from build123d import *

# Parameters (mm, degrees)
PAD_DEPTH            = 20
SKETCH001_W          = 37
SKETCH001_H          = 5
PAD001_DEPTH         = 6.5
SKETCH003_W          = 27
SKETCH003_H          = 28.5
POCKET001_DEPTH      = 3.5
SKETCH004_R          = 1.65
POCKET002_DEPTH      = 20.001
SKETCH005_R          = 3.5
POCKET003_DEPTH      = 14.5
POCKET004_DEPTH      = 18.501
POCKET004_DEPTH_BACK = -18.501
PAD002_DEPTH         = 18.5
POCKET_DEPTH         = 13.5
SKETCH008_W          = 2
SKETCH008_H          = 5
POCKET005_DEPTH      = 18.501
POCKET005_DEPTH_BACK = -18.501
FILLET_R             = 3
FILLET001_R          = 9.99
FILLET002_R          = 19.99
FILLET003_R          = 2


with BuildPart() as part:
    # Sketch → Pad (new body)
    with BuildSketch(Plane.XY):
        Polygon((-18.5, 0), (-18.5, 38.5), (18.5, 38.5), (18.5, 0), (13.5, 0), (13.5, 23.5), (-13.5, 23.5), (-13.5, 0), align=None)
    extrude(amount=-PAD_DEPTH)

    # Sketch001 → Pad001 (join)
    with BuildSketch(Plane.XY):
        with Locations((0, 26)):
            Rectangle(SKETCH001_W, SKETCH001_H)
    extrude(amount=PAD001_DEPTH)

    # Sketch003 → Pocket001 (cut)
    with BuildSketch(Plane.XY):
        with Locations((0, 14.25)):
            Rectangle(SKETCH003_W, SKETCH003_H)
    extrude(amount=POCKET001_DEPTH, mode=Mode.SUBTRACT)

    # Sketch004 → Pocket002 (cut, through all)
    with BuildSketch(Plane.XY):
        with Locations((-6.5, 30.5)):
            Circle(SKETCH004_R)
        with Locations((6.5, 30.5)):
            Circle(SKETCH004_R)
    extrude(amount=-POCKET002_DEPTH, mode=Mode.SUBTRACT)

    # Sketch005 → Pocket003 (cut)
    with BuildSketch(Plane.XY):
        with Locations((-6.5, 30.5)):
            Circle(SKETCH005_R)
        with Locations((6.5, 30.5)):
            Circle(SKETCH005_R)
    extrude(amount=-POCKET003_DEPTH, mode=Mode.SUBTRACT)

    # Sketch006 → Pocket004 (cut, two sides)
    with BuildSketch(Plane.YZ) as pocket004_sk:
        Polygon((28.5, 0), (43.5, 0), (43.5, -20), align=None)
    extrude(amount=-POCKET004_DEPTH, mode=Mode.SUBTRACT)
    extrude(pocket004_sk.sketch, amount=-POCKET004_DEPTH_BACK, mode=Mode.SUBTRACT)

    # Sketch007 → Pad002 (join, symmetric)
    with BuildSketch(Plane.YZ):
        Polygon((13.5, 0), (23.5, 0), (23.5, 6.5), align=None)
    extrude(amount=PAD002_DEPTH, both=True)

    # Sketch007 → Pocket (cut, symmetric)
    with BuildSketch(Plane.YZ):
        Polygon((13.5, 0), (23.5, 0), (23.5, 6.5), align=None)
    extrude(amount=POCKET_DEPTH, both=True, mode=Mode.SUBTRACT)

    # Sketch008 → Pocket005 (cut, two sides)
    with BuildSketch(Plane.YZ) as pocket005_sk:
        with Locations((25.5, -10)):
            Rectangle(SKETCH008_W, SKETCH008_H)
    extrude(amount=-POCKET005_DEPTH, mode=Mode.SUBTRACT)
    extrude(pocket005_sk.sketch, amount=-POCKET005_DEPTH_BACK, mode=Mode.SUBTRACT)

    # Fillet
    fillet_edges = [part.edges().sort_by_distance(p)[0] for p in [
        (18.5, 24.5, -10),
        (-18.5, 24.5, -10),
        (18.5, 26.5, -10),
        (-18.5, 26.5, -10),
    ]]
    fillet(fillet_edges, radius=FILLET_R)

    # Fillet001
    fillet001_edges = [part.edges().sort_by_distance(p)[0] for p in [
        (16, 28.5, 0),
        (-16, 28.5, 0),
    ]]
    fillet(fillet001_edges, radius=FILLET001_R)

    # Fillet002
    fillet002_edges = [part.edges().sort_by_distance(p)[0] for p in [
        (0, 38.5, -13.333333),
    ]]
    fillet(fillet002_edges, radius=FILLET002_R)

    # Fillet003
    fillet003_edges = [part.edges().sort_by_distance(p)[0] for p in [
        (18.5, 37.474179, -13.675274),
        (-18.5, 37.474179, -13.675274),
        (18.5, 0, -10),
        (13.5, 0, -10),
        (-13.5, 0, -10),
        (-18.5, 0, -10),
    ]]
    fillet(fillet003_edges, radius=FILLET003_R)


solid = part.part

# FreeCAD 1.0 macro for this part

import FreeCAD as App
import Part
import Sketcher
from FreeCAD import Vector
Q = App.Units.Quantity


def edges_at(feature, points):
    """Names of the edges that pass closest to the given points."""
    edges = feature.Shape.Edges
    near = lambda p: min(range(len(edges)), key=lambda i: edges[i].distToShape(Part.Vertex(*p))[0])
    return sorted({f"Edge{near(p) + 1}" for p in points})


def add_polygon(sketch, points):
    """Adds a closed chain of lines whose ends are joined by coincident constraints."""
    first, n = sketch.GeometryCount, len(points)
    for a, b in zip(points, points[1:] + points[:1]):
        sketch.addGeometry(Part.LineSegment(App.Vector(*a, 0), App.Vector(*b, 0)), False)
    for i in range(n):
        sketch.addConstraint(Sketcher.Constraint("Coincident", first + i, 2, first + (i + 1) % n, 1))

doc = App.newDocument("Part")
body = doc.addObject("PartDesign::Body", "Body")

sketch1 = doc.addObject("Sketcher::SketchObject", "Sketch")
body.addObject(sketch1)
sketch1.AttachmentSupport = (doc.XY_Plane, [""])
sketch1.MapMode = "FlatFace"
add_polygon(sketch1, [(-18.5, 38.5), (-18.5, 0), (-13.5, 0), (-13.5, 23.5), (13.5, 23.5), (13.5, 0), (18.5, 0), (18.5, 38.5)])
sketch1.addConstraint([
    Sketcher.Constraint("Vertical", 0),
    Sketcher.Constraint("Horizontal", 1),
    Sketcher.Constraint("Vertical", 2),
    Sketcher.Constraint("Horizontal", 3),
    Sketcher.Constraint("Vertical", 4),
    Sketcher.Constraint("Horizontal", 5),
    Sketcher.Constraint("Vertical", 6),
    Sketcher.Constraint("Horizontal", 7),
    Sketcher.Constraint("Symmetric", 1, 2, 4, 2, -1, 1),
    Sketcher.Constraint("Symmetric", 0, 2, 5, 2, -2),
    Sketcher.Constraint("DistanceX", 1, 1, 1, 2, Q("5 mm")),
    Sketcher.Constraint("DistanceX", 3, 1, 3, 2, Q("27 mm")),
    Sketcher.Constraint("DistanceY", 0, 2, 0, 1, Q("38.5 mm")),
    Sketcher.Constraint("DistanceY", 2, 1, 2, 2, Q("23.5 mm")),
])
pad1 = doc.addObject("PartDesign::Pad", "Pad")
body.addObject(pad1)
pad1.Profile = sketch1
pad1.Length = 20
pad1.Reversed = True

sketch2 = doc.addObject("Sketcher::SketchObject", "Sketch001")
body.addObject(sketch2)
sketch2.AttachmentSupport = (doc.XY_Plane, [""])
sketch2.MapMode = "FlatFace"
add_polygon(sketch2, [(-18.5, 28.5), (-18.5, 23.5), (18.5, 23.5), (18.5, 28.5)])
sketch2.addConstraint([
    Sketcher.Constraint("Vertical", 0),
    Sketcher.Constraint("Horizontal", 1),
    Sketcher.Constraint("Vertical", 2),
    Sketcher.Constraint("Horizontal", 3),
    Sketcher.Constraint("DistanceX", 1, 1, 1, 2, Q("37 mm")),
    Sketcher.Constraint("DistanceY", 0, 2, 0, 1, Q("5 mm")),
    Sketcher.Constraint("DistanceX", 0, 2, -1, 1, Q("18.5 mm")),
    Sketcher.Constraint("DistanceY", -1, 1, 0, 2, Q("23.5 mm")),
])
pad2 = doc.addObject("PartDesign::Pad", "Pad001")
body.addObject(pad2)
pad2.Profile = sketch2
pad2.Length = 6.5

sketch3 = doc.addObject("Sketcher::SketchObject", "Sketch002")
body.addObject(sketch3)
sketch3.AttachmentSupport = (doc.XY_Plane, [""])
sketch3.MapMode = "FlatFace"
add_polygon(sketch3, [(-13.5, 28.5), (-13.5, 0), (13.5, 0), (13.5, 28.5)])
sketch3.addConstraint([
    Sketcher.Constraint("Vertical", 0),
    Sketcher.Constraint("Horizontal", 1),
    Sketcher.Constraint("Vertical", 2),
    Sketcher.Constraint("Horizontal", 3),
    Sketcher.Constraint("Symmetric", 0, 2, 1, 2, -1, 1),
    Sketcher.Constraint("DistanceX", 1, 1, 1, 2, Q("27 mm")),
    Sketcher.Constraint("DistanceY", 0, 2, 0, 1, Q("28.5 mm")),
])
pocket1 = doc.addObject("PartDesign::Pocket", "Pocket")
body.addObject(pocket1)
pocket1.Profile = sketch3
pocket1.Length = 3.5
pocket1.Reversed = True

sketch4 = doc.addObject("Sketcher::SketchObject", "Sketch003")
body.addObject(sketch4)
sketch4.AttachmentSupport = (doc.XY_Plane, [""])
sketch4.MapMode = "FlatFace"
sketch4.addGeometry([
    Part.Circle(Vector(-6.5, 30.5, 0), Vector(0, 0, 1), 1.65),
    Part.Circle(Vector(6.5, 30.5, 0), Vector(0, 0, 1), 1.65),
], False)
sketch4.addConstraint([
    Sketcher.Constraint("Equal", 0, 1),
    Sketcher.Constraint("Symmetric", 0, 3, 1, 3, -2),
    Sketcher.Constraint("Diameter", 0, Q("3.3 mm")),
    Sketcher.Constraint("DistanceX", 0, 3, 1, 3, Q("13 mm")),
    Sketcher.Constraint("DistanceY", -1, 1, 0, 3, Q("30.5 mm")),
])
pocket2 = doc.addObject("PartDesign::Pocket", "Pocket001")
body.addObject(pocket2)
pocket2.Profile = sketch4
pocket2.Type = "ThroughAll"

sketch5 = doc.addObject("Sketcher::SketchObject", "Sketch004")
body.addObject(sketch5)
sketch5.AttachmentSupport = (doc.XY_Plane, [""])
sketch5.MapMode = "FlatFace"
sketch5.addGeometry([
    Part.Circle(Vector(-6.5, 30.5, 0), Vector(0, 0, 1), 3.5),
    Part.Circle(Vector(6.5, 30.5, 0), Vector(0, 0, 1), 3.5),
], False)
sketch5.addConstraint([
    Sketcher.Constraint("Equal", 0, 1),
    Sketcher.Constraint("Symmetric", 0, 3, 1, 3, -2),
    Sketcher.Constraint("Diameter", 0, Q("7 mm")),
    Sketcher.Constraint("DistanceX", 0, 3, 1, 3, Q("13 mm")),
    Sketcher.Constraint("DistanceY", -1, 1, 0, 3, Q("30.5 mm")),
])
pocket3 = doc.addObject("PartDesign::Pocket", "Pocket002")
body.addObject(pocket3)
pocket3.Profile = sketch5
pocket3.Length = 14.5

sketch6 = doc.addObject("Sketcher::SketchObject", "Sketch005")
body.addObject(sketch6)
sketch6.AttachmentSupport = (doc.YZ_Plane, [""])
sketch6.MapMode = "FlatFace"
add_polygon(sketch6, [(43.5, 0), (28.5, 0), (43.5, -20)])
sketch6.addConstraint([
    Sketcher.Constraint("Horizontal", 0),
    Sketcher.Constraint("Vertical", 2),
    Sketcher.Constraint("PointOnObject", 0, 2, -1),
    Sketcher.Constraint("DistanceX", 0, 2, 0, 1, Q("15 mm")),
    Sketcher.Constraint("DistanceY", 2, 1, 2, 2, Q("20 mm")),
    Sketcher.Constraint("DistanceX", -1, 1, 0, 2, Q("28.5 mm")),
])
pocket4 = doc.addObject("PartDesign::Pocket", "Pocket003")
body.addObject(pocket4)
pocket4.Profile = sketch6
pocket4.Type = "ThroughAll"
pocket4.Midplane = True

sketch7 = doc.addObject("Sketcher::SketchObject", "Sketch006")
body.addObject(sketch7)
sketch7.AttachmentSupport = (doc.YZ_Plane, [""])
sketch7.MapMode = "FlatFace"
add_polygon(sketch7, [(13.5, 0), (23.5, 0), (23.5, 6.5)])
sketch7.addConstraint([
    Sketcher.Constraint("Horizontal", 0),
    Sketcher.Constraint("Vertical", 1),
    Sketcher.Constraint("PointOnObject", 0, 2, -1),
    Sketcher.Constraint("DistanceX", 0, 1, 0, 2, Q("10 mm")),
    Sketcher.Constraint("DistanceY", 1, 1, 1, 2, Q("6.5 mm")),
    Sketcher.Constraint("DistanceX", -1, 1, 0, 2, Q("23.5 mm")),
])
pad3 = doc.addObject("PartDesign::Pad", "Pad002")
body.addObject(pad3)
pad3.Profile = sketch7
pad3.Length = 37
pad3.Midplane = True

sketch8 = doc.addObject("Sketcher::SketchObject", "Sketch007")
body.addObject(sketch8)
sketch8.AttachmentSupport = (doc.YZ_Plane, [""])
sketch8.MapMode = "FlatFace"
add_polygon(sketch8, [(13.5, 0), (23.5, 0), (23.5, 6.5)])
sketch8.addConstraint([
    Sketcher.Constraint("Horizontal", 0),
    Sketcher.Constraint("Vertical", 1),
    Sketcher.Constraint("PointOnObject", 0, 2, -1),
    Sketcher.Constraint("DistanceX", 0, 1, 0, 2, Q("10 mm")),
    Sketcher.Constraint("DistanceY", 1, 1, 1, 2, Q("6.5 mm")),
    Sketcher.Constraint("DistanceX", -1, 1, 0, 2, Q("23.5 mm")),
])
pocket5 = doc.addObject("PartDesign::Pocket", "Pocket004")
body.addObject(pocket5)
pocket5.Profile = sketch8
pocket5.Length = 27
pocket5.Midplane = True

sketch9 = doc.addObject("Sketcher::SketchObject", "Sketch008")
body.addObject(sketch9)
sketch9.AttachmentSupport = (doc.YZ_Plane, [""])
sketch9.MapMode = "FlatFace"
add_polygon(sketch9, [(24.5, -7.5), (24.5, -12.5), (26.5, -12.5), (26.5, -7.5)])
sketch9.addConstraint([
    Sketcher.Constraint("Vertical", 0),
    Sketcher.Constraint("Horizontal", 1),
    Sketcher.Constraint("Vertical", 2),
    Sketcher.Constraint("Horizontal", 3),
    Sketcher.Constraint("DistanceX", 1, 1, 1, 2, Q("2 mm")),
    Sketcher.Constraint("DistanceY", 0, 2, 0, 1, Q("5 mm")),
    Sketcher.Constraint("DistanceX", -1, 1, 0, 2, Q("24.5 mm")),
    Sketcher.Constraint("DistanceY", 0, 2, -1, 1, Q("12.5 mm")),
])
pocket6 = doc.addObject("PartDesign::Pocket", "Pocket005")
body.addObject(pocket6)
pocket6.Profile = sketch9
pocket6.Type = "ThroughAll"
pocket6.Midplane = True
doc.recompute()

fillet = doc.addObject("PartDesign::Fillet", "Fillet")
body.addObject(fillet)
fillet.Base = (pocket6, edges_at(pocket6, [
    (18.5, 24.5, -10),
    (-18.5, 24.5, -10),
    (18.5, 26.5, -10),
    (-18.5, 26.5, -10),
]))
fillet.Radius = 3
doc.recompute()

fillet2 = doc.addObject("PartDesign::Fillet", "Fillet001")
body.addObject(fillet2)
fillet2.Base = (fillet, edges_at(fillet, [(16, 28.5, 0), (-16, 28.5, 0)]))
fillet2.Radius = 9.99
doc.recompute()

fillet3 = doc.addObject("PartDesign::Fillet", "Fillet002")
body.addObject(fillet3)
fillet3.Base = (fillet2, edges_at(fillet2, [(0, 38.5, -13.333)]))
fillet3.Radius = 19.99
doc.recompute()

fillet4 = doc.addObject("PartDesign::Fillet", "Fillet003")
body.addObject(fillet4)
fillet4.Base = (fillet3, edges_at(fillet3, [
    (18.5, 37.474, -13.675),
    (-18.5, 37.474, -13.675),
    (18.5, 0, -10),
    (13.5, 0, -10),
    (-13.5, 0, -10),
    (-18.5, 0, -10),
]))
fillet4.Radius = 2

doc.recompute()
